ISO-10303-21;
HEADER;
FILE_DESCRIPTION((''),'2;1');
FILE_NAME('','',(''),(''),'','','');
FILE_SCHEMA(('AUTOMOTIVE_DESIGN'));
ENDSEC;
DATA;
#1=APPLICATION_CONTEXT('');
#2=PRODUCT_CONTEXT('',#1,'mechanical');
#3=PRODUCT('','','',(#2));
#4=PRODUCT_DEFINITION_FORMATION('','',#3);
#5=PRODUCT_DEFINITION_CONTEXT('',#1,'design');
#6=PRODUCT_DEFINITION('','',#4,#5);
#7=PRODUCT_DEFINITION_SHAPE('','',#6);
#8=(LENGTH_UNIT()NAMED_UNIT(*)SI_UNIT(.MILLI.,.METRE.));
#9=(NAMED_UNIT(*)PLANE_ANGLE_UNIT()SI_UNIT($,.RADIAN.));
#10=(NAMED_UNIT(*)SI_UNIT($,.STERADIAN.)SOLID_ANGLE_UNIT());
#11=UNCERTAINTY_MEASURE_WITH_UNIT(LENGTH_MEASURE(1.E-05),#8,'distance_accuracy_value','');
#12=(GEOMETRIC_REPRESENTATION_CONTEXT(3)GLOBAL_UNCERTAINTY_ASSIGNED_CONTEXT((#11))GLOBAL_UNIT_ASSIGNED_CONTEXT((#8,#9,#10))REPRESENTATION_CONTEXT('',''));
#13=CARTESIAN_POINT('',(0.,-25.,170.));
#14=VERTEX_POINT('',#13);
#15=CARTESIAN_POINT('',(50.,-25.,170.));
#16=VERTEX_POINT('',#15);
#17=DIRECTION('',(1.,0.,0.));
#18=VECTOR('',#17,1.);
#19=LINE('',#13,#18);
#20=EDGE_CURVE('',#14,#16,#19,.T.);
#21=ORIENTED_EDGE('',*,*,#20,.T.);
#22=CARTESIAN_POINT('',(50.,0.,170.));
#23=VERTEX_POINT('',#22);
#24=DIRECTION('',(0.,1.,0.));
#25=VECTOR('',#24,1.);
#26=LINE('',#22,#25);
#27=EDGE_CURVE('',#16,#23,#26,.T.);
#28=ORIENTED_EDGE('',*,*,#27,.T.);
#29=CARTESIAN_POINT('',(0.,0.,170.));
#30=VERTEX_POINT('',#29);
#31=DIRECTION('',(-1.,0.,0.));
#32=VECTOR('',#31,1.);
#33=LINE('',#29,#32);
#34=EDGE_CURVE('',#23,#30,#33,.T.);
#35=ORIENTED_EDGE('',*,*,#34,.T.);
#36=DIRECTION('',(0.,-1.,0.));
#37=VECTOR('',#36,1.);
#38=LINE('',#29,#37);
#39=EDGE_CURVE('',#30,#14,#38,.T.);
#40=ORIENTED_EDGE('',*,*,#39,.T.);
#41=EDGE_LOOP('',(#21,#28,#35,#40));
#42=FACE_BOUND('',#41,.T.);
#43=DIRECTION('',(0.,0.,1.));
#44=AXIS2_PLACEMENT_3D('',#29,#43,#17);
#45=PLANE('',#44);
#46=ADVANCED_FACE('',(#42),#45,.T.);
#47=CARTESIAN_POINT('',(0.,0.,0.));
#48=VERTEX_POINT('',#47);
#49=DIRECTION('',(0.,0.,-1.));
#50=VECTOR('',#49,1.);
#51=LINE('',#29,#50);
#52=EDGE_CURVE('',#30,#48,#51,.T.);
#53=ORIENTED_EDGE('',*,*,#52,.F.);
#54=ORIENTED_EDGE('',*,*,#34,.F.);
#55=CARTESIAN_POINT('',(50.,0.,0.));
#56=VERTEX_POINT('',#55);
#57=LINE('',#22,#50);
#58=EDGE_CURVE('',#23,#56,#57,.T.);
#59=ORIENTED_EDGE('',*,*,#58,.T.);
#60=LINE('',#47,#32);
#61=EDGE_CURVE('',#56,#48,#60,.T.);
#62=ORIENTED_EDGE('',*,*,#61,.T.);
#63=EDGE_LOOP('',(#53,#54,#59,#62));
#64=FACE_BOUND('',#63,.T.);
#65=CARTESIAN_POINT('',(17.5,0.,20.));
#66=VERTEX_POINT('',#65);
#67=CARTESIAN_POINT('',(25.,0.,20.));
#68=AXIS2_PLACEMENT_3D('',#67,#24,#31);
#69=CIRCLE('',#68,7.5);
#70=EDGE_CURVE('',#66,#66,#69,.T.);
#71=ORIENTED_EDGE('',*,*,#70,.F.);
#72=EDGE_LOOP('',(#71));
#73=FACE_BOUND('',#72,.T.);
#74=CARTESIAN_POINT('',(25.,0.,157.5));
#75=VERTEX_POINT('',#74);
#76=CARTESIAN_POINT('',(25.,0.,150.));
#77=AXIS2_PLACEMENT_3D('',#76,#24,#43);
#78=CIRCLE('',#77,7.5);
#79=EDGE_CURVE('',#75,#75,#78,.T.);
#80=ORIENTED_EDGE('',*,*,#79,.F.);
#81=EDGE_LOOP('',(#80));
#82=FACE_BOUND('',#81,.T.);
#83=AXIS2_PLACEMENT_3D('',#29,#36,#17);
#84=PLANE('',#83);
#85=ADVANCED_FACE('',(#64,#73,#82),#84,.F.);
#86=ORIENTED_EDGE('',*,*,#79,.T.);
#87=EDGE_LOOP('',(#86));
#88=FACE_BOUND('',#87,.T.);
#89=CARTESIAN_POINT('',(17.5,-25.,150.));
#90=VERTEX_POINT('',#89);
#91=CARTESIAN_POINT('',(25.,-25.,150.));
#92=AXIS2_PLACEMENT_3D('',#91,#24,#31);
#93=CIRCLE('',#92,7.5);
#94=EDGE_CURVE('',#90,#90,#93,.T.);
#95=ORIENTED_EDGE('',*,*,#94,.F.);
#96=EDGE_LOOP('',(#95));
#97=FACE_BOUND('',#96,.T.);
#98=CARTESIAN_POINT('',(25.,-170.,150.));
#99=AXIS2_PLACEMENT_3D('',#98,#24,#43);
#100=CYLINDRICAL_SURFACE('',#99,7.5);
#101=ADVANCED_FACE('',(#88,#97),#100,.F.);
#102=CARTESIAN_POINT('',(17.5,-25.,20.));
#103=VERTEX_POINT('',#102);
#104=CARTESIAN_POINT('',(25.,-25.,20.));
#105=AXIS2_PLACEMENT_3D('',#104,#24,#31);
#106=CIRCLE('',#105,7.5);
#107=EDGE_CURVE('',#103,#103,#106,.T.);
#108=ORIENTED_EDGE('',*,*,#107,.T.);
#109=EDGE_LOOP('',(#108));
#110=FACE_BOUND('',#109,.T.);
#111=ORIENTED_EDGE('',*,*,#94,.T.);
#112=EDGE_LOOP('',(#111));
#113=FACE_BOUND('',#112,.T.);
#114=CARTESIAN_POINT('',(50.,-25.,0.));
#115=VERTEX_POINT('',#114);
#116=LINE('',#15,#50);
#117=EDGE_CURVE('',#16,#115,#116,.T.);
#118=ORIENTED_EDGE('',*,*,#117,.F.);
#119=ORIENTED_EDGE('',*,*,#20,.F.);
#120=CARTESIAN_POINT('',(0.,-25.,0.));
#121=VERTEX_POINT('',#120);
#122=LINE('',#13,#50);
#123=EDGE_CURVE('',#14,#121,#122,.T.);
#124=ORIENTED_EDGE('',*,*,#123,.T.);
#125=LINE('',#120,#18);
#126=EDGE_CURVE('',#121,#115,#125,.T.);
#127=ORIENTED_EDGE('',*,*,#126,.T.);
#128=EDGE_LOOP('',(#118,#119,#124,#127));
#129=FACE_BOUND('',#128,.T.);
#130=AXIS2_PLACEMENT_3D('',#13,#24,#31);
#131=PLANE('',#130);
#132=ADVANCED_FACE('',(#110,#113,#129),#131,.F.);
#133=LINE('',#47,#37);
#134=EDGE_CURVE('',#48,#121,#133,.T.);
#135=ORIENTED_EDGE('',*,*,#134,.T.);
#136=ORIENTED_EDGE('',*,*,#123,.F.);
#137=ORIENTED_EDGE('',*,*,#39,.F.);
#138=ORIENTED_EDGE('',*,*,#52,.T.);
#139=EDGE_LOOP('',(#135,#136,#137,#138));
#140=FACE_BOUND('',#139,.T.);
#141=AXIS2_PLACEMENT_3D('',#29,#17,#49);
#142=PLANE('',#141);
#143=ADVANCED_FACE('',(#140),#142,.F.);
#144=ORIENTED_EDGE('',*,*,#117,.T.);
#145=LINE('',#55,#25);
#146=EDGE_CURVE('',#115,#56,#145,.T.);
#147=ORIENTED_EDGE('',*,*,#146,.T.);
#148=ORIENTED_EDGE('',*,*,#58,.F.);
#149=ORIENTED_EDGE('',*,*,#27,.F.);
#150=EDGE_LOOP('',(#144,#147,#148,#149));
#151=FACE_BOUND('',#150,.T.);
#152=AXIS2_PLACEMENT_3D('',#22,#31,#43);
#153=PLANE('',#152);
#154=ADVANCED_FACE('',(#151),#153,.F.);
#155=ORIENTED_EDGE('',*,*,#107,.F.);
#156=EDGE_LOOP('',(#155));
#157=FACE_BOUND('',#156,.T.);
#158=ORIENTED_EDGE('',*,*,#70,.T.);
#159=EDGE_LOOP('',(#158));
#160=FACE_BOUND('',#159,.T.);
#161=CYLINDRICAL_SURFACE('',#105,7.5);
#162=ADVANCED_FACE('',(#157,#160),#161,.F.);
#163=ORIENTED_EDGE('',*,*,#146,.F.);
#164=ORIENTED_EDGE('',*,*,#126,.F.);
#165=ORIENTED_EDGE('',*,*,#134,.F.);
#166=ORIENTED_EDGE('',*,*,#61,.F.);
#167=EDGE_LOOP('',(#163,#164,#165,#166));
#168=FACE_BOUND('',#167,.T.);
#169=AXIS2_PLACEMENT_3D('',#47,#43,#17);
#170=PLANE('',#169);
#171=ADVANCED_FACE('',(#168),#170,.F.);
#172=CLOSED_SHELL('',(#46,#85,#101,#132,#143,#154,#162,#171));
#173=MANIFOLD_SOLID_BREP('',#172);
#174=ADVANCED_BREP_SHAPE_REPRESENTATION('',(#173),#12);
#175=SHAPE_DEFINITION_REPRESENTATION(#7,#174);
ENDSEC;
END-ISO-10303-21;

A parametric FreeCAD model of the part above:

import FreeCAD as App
import Part
import Sketcher

V = App.Vector


def add_polygon(sketch, points):
    """Adds a closed chain of lines whose ends are joined by coincident constraints."""
    first, n = sketch.GeometryCount, len(points)
    for a, b in zip(points, points[1:] + points[:1]):
        sketch.addGeometry(Part.LineSegment(App.Vector(*a, 0), App.Vector(*b, 0)), False)
    for i in range(n):
        sketch.addConstraint(Sketcher.Constraint("Coincident", first + i, 2, first + (i + 1) % n, 1))

doc = App.newDocument("Part")
body = doc.addObject("PartDesign::Body", "Body")

sketch1 = body.newObject("Sketcher::SketchObject", "Sketch")
sketch1.AttachmentSupport = (doc.getObject("XY_Plane"), [""])
sketch1.MapMode = "FlatFace"
add_polygon(sketch1, [(0, 0), (0, -25), (50, -25), (50, 0)])
sketch1.addConstraint([
    Sketcher.Constraint("Vertical", 0),
    Sketcher.Constraint("Horizontal", 1),
    Sketcher.Constraint("Vertical", 2),
    Sketcher.Constraint("Horizontal", 3),
    Sketcher.Constraint("Coincident", 3, 2, -1, 1),
    Sketcher.Constraint("DistanceX", 1, 1, 1, 2, 50.0),
    Sketcher.Constraint("DistanceY", 0, 2, 0, 1, 25.0),
])
pad1 = body.newObject("PartDesign::Pad", "Pad")
pad1.Profile = sketch1
pad1.Length = 170

sketch2 = body.newObject("Sketcher::SketchObject", "Sketch001")
sketch2.AttachmentSupport = (doc.getObject("XZ_Plane"), [""])
sketch2.MapMode = "FlatFace"
sketch2.addGeometry(Part.Circle(V(25, 20, 0), V(0, 0, 1), 8), False)
sketch2.addConstraint([
    Sketcher.Constraint("Diameter", 0, 15.0),
    Sketcher.Constraint("DistanceX", -1, 1, 0, 3, 25.0),
    Sketcher.Constraint("DistanceY", -1, 1, 0, 3, 20.0),
])
pocket1 = body.newObject("PartDesign::Pocket", "Pocket")
pocket1.Profile = sketch2
pocket1.Type = "ThroughAll"
pocket1.Reversed = True

sketch3 = body.newObject("Sketcher::SketchObject", "Sketch002")
sketch3.AttachmentSupport = (doc.getObject("XZ_Plane"), [""])
sketch3.MapMode = "FlatFace"
sketch3.addGeometry(Part.Circle(V(25, 150, 0), V(0, 0, 1), 8), False)
sketch3.addConstraint([
    Sketcher.Constraint("Diameter", 0, 15.0),
    Sketcher.Constraint("DistanceX", -1, 1, 0, 3, 25.0),
    Sketcher.Constraint("DistanceY", -1, 1, 0, 3, 150.0),
])
pocket2 = body.newObject("PartDesign::Pocket", "Pocket001")
pocket2.Profile = sketch3
pocket2.Length = 170
pocket2.Reversed = True

doc.recompute()
